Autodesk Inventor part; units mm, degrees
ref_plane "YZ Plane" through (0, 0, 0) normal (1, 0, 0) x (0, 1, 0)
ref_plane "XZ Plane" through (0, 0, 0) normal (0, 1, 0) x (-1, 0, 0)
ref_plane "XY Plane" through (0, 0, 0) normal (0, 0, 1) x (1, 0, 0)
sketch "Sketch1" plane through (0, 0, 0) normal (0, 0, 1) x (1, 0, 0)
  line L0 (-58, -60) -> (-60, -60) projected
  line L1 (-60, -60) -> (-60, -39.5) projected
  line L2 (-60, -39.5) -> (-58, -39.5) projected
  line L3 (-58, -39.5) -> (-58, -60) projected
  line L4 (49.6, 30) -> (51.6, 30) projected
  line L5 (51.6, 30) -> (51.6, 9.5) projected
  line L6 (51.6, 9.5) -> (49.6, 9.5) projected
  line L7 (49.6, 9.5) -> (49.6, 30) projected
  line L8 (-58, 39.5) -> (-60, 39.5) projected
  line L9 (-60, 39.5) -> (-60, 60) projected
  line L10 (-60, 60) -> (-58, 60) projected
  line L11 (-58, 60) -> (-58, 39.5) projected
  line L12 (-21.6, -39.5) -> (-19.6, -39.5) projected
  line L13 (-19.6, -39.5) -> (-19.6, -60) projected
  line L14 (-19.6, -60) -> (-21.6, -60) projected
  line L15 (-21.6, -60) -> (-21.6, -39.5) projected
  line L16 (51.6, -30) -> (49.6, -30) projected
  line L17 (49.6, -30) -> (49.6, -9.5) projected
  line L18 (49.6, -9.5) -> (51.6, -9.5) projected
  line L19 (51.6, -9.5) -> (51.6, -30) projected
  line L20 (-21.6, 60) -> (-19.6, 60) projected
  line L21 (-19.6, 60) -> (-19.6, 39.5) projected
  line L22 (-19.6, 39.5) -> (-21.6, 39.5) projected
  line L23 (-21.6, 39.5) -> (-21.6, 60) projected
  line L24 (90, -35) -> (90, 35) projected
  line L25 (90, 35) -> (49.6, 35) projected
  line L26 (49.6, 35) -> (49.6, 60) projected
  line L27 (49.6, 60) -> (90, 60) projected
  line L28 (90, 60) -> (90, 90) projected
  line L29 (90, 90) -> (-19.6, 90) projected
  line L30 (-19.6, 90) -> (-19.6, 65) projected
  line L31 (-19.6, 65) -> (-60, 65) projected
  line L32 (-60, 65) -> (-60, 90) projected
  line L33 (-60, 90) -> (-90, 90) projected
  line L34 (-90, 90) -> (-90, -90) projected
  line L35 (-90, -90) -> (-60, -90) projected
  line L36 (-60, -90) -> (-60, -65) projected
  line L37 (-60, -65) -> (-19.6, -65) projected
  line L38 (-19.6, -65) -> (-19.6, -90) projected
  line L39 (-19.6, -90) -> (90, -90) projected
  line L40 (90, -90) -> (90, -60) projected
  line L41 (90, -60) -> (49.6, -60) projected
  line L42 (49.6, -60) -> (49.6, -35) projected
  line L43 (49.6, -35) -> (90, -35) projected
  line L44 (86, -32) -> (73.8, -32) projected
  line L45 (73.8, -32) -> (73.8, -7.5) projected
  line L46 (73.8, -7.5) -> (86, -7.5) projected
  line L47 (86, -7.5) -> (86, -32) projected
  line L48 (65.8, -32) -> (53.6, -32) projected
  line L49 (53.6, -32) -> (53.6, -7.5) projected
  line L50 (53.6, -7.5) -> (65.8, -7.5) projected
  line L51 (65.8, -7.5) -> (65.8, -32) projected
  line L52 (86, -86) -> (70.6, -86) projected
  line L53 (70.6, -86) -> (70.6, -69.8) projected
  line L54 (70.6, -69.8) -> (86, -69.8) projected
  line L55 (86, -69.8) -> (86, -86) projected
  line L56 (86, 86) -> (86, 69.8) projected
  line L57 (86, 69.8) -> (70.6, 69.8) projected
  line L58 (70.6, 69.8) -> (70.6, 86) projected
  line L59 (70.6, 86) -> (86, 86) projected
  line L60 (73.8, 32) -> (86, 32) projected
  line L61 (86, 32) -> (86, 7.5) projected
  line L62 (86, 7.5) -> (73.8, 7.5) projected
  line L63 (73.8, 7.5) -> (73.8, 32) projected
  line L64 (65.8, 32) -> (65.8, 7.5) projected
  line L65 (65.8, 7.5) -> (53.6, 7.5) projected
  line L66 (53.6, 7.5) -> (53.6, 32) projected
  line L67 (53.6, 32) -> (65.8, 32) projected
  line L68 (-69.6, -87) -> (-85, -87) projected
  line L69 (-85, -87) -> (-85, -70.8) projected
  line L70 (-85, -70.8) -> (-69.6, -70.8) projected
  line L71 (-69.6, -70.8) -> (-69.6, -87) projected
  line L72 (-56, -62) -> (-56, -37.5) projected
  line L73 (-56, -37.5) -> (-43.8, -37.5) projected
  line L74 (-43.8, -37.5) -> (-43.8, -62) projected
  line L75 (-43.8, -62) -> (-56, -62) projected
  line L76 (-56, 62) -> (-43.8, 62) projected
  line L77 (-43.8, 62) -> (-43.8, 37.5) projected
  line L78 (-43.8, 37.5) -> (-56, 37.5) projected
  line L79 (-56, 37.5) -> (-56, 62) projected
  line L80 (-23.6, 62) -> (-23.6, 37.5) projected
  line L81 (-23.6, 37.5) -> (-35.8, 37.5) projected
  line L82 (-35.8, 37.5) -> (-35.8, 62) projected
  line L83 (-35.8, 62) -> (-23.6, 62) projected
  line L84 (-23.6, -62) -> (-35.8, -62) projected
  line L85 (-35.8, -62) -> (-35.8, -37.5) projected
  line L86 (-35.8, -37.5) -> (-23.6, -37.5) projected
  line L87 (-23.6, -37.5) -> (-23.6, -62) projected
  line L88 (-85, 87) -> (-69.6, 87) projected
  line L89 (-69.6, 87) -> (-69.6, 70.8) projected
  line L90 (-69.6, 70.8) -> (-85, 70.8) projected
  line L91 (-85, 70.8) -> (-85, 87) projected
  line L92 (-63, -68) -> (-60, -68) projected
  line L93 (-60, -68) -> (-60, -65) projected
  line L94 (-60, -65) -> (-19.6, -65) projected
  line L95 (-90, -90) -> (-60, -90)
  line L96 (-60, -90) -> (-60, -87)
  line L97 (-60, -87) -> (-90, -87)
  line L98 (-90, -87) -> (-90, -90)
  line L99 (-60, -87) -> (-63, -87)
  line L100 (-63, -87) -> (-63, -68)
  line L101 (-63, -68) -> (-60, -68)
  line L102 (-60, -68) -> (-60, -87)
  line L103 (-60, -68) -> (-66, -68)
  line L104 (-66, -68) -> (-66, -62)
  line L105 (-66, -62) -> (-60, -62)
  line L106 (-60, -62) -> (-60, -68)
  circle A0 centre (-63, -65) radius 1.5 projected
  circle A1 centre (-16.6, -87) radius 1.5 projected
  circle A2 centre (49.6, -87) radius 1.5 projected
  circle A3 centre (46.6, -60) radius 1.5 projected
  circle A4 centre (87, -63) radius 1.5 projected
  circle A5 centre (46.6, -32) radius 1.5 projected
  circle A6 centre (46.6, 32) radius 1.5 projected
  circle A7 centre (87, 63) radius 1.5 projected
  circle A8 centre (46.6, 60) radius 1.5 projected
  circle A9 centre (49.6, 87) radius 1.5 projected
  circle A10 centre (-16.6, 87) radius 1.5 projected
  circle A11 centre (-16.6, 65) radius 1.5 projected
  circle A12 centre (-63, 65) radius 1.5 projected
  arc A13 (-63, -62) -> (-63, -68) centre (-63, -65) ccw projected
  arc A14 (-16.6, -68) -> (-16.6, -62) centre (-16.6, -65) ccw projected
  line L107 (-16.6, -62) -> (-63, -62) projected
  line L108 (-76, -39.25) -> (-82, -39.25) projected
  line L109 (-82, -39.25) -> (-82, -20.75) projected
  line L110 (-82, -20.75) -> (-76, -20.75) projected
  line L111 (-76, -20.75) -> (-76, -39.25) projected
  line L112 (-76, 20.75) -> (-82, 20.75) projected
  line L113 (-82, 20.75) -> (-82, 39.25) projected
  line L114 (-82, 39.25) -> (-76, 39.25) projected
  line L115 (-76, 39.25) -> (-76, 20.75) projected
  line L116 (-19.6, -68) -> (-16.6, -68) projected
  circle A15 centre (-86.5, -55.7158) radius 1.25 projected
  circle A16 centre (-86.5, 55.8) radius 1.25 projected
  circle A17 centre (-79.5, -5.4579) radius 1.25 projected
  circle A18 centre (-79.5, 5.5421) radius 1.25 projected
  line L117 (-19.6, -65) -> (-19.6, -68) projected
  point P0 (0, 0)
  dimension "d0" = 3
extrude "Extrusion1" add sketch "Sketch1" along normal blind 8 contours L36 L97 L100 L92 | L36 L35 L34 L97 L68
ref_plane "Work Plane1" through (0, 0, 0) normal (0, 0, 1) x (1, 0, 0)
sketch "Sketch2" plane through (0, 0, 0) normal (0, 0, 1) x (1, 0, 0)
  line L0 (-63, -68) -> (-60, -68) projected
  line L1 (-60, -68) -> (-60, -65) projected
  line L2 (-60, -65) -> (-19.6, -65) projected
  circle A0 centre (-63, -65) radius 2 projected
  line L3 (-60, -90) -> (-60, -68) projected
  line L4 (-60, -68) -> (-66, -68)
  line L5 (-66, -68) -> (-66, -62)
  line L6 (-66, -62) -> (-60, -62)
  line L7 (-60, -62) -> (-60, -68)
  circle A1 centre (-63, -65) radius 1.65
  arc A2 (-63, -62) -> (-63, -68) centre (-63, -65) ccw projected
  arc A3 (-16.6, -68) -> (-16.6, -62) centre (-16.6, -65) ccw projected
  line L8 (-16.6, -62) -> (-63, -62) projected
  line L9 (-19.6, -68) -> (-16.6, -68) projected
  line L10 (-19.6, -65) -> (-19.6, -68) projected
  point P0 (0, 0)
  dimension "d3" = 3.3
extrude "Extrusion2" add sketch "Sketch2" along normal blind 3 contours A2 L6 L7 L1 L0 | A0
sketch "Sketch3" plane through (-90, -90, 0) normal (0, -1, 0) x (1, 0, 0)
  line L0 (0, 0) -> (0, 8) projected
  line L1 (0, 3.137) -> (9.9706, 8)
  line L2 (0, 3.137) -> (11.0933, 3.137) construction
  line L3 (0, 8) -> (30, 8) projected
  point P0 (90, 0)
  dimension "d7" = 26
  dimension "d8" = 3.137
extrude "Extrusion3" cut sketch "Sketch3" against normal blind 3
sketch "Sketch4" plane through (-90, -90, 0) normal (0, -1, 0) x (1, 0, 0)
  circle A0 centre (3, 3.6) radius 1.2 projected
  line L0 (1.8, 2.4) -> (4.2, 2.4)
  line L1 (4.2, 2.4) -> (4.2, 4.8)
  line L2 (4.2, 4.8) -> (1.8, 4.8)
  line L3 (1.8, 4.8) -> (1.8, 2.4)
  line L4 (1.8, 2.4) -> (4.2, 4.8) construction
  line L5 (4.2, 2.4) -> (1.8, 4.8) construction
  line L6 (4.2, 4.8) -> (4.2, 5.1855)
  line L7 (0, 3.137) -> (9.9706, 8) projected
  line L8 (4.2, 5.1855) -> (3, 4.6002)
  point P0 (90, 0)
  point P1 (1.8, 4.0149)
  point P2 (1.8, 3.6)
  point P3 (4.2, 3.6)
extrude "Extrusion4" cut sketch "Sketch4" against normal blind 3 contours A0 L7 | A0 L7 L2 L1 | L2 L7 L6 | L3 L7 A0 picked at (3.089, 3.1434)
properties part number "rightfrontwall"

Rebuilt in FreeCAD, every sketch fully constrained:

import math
import FreeCAD as App
import Part
import Sketcher
Q = App.Units.Quantity

doc = App.newDocument("Part")
params = doc.addObject("Spreadsheet::Sheet", "Params")
for row, (alias, value) in enumerate([
    ("sketch1_width", "3 mm"),
    ("sketch1_width2", "27 mm"),
    ("sketch1_height", "19 mm"),
    ("pad1_length", "8 mm"),
    ("sketch2_diameter", "3.3 mm"),
    ("sketch2_radius", "3 mm"),
    ("sketch2_width", "3 mm"),
    ("pad2_length", "3 mm"),
    ("pocket1_length", "3 mm"),
    ("sketch4_radius", "1.2 mm"),
    ("pocket2_length", "3 mm"),
], start=1):
    params.set(f"A{row}", alias)
    params.set(f"B{row}", "=" + value)
    params.setAlias(f"B{row}", alias)

body = doc.addObject("PartDesign::Body", "Body")

sketch1 = body.newObject("Sketcher::SketchObject", "Sketch")
sketch1.AttachmentSupport = (doc.getObject("XY_Plane"), [""])
sketch1.MapMode = "FlatFace"
sketch1.addGeometry([
    Part.LineSegment(App.Vector(-60, -68, 0), App.Vector(-63, -68, 0)),
    Part.LineSegment(App.Vector(-63, -68, 0), App.Vector(-63, -87, 0)),
    Part.LineSegment(App.Vector(-63, -87, 0), App.Vector(-90, -87, 0)),
    Part.LineSegment(App.Vector(-90, -87, 0), App.Vector(-90, -90, 0)),
    Part.LineSegment(App.Vector(-90, -90, 0), App.Vector(-60, -90, 0)),
    Part.LineSegment(App.Vector(-60, -90, 0), App.Vector(-60, -68, 0)),
], False)
sketch1.addConstraint([
    Sketcher.Constraint("Coincident", 0, 2, 1, 1),
    Sketcher.Constraint("Coincident", 1, 2, 2, 1),
    Sketcher.Constraint("Coincident", 2, 2, 3, 1),
    Sketcher.Constraint("Coincident", 3, 2, 4, 1),
    Sketcher.Constraint("Coincident", 4, 2, 5, 1),
    Sketcher.Constraint("Coincident", 5, 2, 0, 1),
    Sketcher.Constraint("Horizontal", 0),
    Sketcher.Constraint("Vertical", 1),
    Sketcher.Constraint("Horizontal", 2),
    Sketcher.Constraint("Vertical", 3),
    Sketcher.Constraint("Horizontal", 4),
    Sketcher.Constraint("Vertical", 5),
    Sketcher.Constraint("Equal", 0, 3),
    Sketcher.Constraint("DistanceX", 0, 2, 0, 1, Q("3 mm")),
    Sketcher.Constraint("DistanceX", 2, 2, 2, 1, Q("27 mm")),
    Sketcher.Constraint("DistanceY", 1, 2, 1, 1, Q("19 mm")),
    Sketcher.Constraint("DistanceX", 0, 2, -1, 1, Q("63 mm")),
    Sketcher.Constraint("DistanceY", 0, 2, -1, 1, Q("68 mm")),
])
sketch1.setExpression("Constraints[13]", "Params.sketch1_width")
sketch1.setExpression("Constraints[14]", "Params.sketch1_width2")
sketch1.setExpression("Constraints[15]", "Params.sketch1_height")
pad1 = body.newObject("PartDesign::Pad", "Pad")
pad1.Profile = sketch1
pad1.setExpression("Length", "Params.pad1_length")

sketch2 = body.newObject("Sketcher::SketchObject", "Sketch001")
sketch2.AttachmentSupport = (doc.getObject("XY_Plane"), [""])
sketch2.MapMode = "FlatFace"
sketch2.addGeometry([
    Part.LineSegment(App.Vector(-63, -68, 0), App.Vector(-60, -68, 0)),
    Part.LineSegment(App.Vector(-60, -68, 0), App.Vector(-60, -62, 0)),
    Part.LineSegment(App.Vector(-60, -62, 0), App.Vector(-63, -62, 0)),
    Part.ArcOfCircle(Part.Circle(App.Vector(-63, -65, 0), App.Vector(0, 0, 1), 3), math.radians(90), math.radians(270)),
    Part.Circle(App.Vector(-63, -65, 0), App.Vector(0, 0, 1), 1.65),
], False)
sketch2.addConstraint([
    Sketcher.Constraint("Coincident", 0, 2, 1, 1),
    Sketcher.Constraint("Coincident", 1, 2, 2, 1),
    Sketcher.Constraint("Tangent", 2, 2, 3, 1),
    Sketcher.Constraint("Tangent", 3, 2, 0, 1),
    Sketcher.Constraint("Horizontal", 0),
    Sketcher.Constraint("Vertical", 1),
    Sketcher.Constraint("Horizontal", 2),
    Sketcher.Constraint("Coincident", 4, 3, 3, 3),
    Sketcher.Constraint("Diameter", 4, Q("3.3 mm")),
    Sketcher.Constraint("Radius", 3, Q("3 mm")),
    Sketcher.Constraint("DistanceX", 0, 1, 0, 2, Q("3 mm")),
    Sketcher.Constraint("DistanceX", 3, 3, -1, 1, Q("63 mm")),
    Sketcher.Constraint("DistanceY", 3, 3, -1, 1, Q("65 mm")),
])
sketch2.setExpression("Constraints[8]", "Params.sketch2_diameter")
sketch2.setExpression("Constraints[9]", "Params.sketch2_radius")
sketch2.setExpression("Constraints[10]", "Params.sketch2_width")
pad2 = body.newObject("PartDesign::Pad", "Pad001")
pad2.Profile = sketch2
pad2.setExpression("Length", "Params.pad2_length")

sketch3 = body.newObject("Sketcher::SketchObject", "Sketch002")
sketch3.AttachmentSupport = (doc.getObject("XZ_Plane"), [""])
sketch3.MapMode = "FlatFace"
sketch3.AttachmentOffset = App.Placement(App.Vector(0, 0, 90), App.Rotation())
sketch3.addGeometry([
    Part.LineSegment(App.Vector(-90, 8, 0), App.Vector(-90, 3.137, 0)),
    Part.LineSegment(App.Vector(-90, 3.137, 0), App.Vector(-80.0294, 8, 0)),
    Part.LineSegment(App.Vector(-80.0294, 8, 0), App.Vector(-90, 8, 0)),
], False)
sketch3.addConstraint([
    Sketcher.Constraint("Coincident", 0, 2, 1, 1),
    Sketcher.Constraint("Coincident", 1, 2, 2, 1),
    Sketcher.Constraint("Coincident", 2, 2, 0, 1),
    Sketcher.Constraint("Vertical", 0),
    Sketcher.Constraint("Horizontal", 2),
    Sketcher.Constraint("Angle", 1, Q("26 deg")),
    Sketcher.Constraint("DistanceY", -1, 1, 0, 2, Q("3.137 mm")),
    Sketcher.Constraint("DistanceX", 0, 2, -1, 1, Q("90 mm")),
    Sketcher.Constraint("DistanceY", -1, 1, 1, 2, Q("8 mm")),
])
pocket1 = body.newObject("PartDesign::Pocket", "Pocket")
pocket1.Profile = sketch3
pocket1.setExpression("Length", "Params.pocket1_length")

sketch4 = body.newObject("Sketcher::SketchObject", "Sketch003")
sketch4.AttachmentSupport = (doc.getObject("XZ_Plane"), [""])
sketch4.MapMode = "FlatFace"
sketch4.AttachmentOffset = App.Placement(App.Vector(0, 0, 90), App.Rotation())
sketch4.addGeometry([
    Part.LineSegment(App.Vector(-85.8, 3.6, 0), App.Vector(-85.8, 5.1855, 0)),
    Part.LineSegment(App.Vector(-85.8, 5.1855, 0), App.Vector(-88.2, 4.014921, 0)),
    Part.LineSegment(App.Vector(-88.2, 4.014921, 0), App.Vector(-88.2, 3.6, 0)),
    Part.ArcOfCircle(Part.Circle(App.Vector(-87, 3.6, 0), App.Vector(0, 0, 1), 1.2), math.radians(180), math.radians(360)),
], False)
sketch4.addConstraint([
    Sketcher.Constraint("Coincident", 0, 2, 1, 1),
    Sketcher.Constraint("Coincident", 1, 2, 2, 1),
    Sketcher.Constraint("Tangent", 2, 2, 3, 1),
    Sketcher.Constraint("Tangent", 3, 2, 0, 1),
    Sketcher.Constraint("Vertical", 0),
    Sketcher.Constraint("Vertical", 2),
    Sketcher.Constraint("Radius", 3, Q("1.2 mm")),
    Sketcher.Constraint("Angle", 1, Q("-153.9996 deg")),
    Sketcher.Constraint("DistanceX", 3, 3, -1, 1, Q("87 mm")),
    Sketcher.Constraint("DistanceY", -1, 1, 3, 3, Q("3.6 mm")),
    Sketcher.Constraint("DistanceY", 2, 2, 2, 1, Q("0.415 mm")),
])
sketch4.setExpression("Constraints[6]", "Params.sketch4_radius")
pocket2 = body.newObject("PartDesign::Pocket", "Pocket001")
pocket2.Profile = sketch4
pocket2.setExpression("Length", "Params.pocket2_length")

doc.recompute()
